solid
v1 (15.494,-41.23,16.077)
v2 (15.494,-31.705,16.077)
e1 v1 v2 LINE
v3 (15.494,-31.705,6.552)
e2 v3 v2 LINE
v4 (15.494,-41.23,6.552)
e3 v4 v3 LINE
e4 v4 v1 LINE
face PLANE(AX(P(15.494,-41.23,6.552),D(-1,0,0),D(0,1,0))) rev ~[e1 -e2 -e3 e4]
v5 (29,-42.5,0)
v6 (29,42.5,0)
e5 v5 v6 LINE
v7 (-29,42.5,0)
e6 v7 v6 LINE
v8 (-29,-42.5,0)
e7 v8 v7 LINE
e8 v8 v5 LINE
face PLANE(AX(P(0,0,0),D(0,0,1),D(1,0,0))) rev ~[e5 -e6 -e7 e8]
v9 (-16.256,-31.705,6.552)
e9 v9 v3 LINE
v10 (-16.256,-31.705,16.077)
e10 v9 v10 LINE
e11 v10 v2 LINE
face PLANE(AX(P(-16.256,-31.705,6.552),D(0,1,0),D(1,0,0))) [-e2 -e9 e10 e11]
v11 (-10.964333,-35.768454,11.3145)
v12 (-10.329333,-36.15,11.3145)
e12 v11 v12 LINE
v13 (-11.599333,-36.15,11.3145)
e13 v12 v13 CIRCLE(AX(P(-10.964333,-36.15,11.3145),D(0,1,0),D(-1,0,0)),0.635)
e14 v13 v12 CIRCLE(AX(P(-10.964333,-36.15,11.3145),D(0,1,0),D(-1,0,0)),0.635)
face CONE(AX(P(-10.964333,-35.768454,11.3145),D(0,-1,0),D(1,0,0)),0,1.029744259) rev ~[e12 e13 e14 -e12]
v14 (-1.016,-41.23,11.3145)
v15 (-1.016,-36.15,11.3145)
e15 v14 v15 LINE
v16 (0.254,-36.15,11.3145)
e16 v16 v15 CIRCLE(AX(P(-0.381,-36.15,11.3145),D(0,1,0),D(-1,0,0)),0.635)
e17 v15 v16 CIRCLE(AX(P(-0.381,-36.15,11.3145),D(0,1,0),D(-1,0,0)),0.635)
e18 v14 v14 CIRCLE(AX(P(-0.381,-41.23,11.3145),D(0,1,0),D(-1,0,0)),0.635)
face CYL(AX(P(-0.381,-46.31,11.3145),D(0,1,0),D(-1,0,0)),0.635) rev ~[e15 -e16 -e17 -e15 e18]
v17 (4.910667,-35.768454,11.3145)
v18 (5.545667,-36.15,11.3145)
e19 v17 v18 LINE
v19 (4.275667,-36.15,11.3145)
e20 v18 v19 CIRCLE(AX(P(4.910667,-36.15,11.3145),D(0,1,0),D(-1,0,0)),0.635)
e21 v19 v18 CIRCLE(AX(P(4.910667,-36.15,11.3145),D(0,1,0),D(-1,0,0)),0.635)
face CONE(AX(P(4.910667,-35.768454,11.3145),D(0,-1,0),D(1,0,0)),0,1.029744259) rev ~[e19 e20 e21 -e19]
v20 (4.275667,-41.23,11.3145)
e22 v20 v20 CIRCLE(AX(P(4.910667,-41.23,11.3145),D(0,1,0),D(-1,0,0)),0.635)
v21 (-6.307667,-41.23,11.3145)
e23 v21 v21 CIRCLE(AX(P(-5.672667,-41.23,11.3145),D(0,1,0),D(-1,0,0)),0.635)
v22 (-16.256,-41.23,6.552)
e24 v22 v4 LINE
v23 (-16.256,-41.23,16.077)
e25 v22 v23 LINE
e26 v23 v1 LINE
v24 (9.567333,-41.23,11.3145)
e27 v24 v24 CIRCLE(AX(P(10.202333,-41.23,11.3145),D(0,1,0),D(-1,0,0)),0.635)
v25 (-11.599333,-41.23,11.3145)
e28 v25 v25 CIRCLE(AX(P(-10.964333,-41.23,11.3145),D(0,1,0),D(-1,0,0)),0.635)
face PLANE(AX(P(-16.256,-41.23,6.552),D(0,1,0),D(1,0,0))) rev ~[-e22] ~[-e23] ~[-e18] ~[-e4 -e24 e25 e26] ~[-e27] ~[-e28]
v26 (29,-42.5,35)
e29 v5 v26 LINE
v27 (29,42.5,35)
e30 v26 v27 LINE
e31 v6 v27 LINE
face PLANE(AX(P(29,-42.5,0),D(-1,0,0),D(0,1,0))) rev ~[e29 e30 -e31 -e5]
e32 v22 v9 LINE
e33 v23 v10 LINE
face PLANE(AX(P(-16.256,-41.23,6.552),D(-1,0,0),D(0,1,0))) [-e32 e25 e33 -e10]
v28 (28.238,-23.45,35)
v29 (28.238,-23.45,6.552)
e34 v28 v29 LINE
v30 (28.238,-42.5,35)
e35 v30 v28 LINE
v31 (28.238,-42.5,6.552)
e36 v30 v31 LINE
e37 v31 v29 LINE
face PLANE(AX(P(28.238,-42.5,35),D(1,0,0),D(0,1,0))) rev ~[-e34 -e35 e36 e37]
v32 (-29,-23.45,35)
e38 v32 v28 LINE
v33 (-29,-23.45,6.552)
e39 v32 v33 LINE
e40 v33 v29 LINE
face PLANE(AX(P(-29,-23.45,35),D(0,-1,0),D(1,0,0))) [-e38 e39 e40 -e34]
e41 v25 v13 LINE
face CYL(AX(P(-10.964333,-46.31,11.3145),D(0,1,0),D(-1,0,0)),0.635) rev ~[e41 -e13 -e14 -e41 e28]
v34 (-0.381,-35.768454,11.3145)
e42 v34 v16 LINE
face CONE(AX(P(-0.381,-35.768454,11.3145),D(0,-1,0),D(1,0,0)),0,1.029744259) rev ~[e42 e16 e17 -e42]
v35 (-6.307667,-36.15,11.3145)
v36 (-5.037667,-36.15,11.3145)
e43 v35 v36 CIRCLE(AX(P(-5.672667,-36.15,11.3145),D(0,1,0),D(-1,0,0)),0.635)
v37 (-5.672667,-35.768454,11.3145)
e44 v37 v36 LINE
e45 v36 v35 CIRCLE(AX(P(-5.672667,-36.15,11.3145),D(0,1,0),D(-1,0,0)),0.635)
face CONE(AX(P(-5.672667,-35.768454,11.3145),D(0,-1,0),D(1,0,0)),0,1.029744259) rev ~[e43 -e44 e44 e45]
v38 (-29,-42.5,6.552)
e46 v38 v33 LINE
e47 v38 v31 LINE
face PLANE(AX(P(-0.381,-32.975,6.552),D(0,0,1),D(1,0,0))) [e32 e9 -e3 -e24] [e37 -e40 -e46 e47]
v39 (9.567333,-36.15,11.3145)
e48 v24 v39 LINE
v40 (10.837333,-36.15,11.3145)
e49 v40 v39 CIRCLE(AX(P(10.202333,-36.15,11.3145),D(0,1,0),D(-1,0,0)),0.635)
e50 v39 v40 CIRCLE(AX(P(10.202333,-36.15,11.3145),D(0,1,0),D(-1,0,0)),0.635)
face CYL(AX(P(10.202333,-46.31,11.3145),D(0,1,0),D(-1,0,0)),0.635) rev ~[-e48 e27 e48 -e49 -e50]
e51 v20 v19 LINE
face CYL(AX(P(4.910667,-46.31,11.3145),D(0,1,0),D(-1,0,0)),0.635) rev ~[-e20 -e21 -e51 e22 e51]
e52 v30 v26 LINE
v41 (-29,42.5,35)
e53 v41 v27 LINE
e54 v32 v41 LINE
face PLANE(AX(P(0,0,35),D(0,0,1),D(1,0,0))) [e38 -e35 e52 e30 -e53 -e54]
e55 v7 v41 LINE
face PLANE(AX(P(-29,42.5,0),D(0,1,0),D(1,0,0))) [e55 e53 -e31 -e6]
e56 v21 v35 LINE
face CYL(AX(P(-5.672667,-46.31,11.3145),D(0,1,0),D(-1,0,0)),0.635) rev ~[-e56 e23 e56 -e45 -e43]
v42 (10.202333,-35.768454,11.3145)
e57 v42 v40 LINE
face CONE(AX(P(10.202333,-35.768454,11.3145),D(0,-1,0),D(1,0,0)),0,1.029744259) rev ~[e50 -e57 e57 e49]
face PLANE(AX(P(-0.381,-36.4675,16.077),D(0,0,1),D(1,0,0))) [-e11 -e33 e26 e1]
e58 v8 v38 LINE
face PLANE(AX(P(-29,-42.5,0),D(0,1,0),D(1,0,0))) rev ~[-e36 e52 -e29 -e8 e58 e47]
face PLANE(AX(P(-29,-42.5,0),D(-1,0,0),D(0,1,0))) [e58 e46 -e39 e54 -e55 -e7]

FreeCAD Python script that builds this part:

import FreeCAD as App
import Part
import Sketcher
Q = App.Units.Quantity


def add_polygon(sketch, points):
    """Adds a closed chain of lines whose ends are joined by coincident constraints."""
    first, n = sketch.GeometryCount, len(points)
    for a, b in zip(points, points[1:] + points[:1]):
        sketch.addGeometry(Part.LineSegment(App.Vector(*a, 0), App.Vector(*b, 0)), False)
    for i in range(n):
        sketch.addConstraint(Sketcher.Constraint("Coincident", first + i, 2, first + (i + 1) % n, 1))

doc = App.newDocument("Part")
body = doc.addObject("PartDesign::Body", "Body")

# Sketch on XY plane
sketch1 = body.newObject("Sketcher::SketchObject", "Sketch")
sketch1.AttachmentSupport = (doc.getObject("XY_Plane"), [""])
sketch1.MapMode = "FlatFace"
add_polygon(sketch1, [(-29, 42), (-29, -42), (29, -42), (29, 42)])  # lines 0-3
sketch1.addConstraint([
    Sketcher.Constraint("Vertical", 0),
    Sketcher.Constraint("Horizontal", 1),
    Sketcher.Constraint("Vertical", 2),
    Sketcher.Constraint("Horizontal", 3),
    Sketcher.Constraint("Symmetric", 0, 2, 2, 2, -1, 1),
    Sketcher.Constraint("DistanceX", 1, 1, 1, 2, Q("58 mm")),
    Sketcher.Constraint("DistanceY", 0, 2, 0, 1, Q("85 mm")),
])
pad1 = body.newObject("PartDesign::Pad", "Pad")
pad1.Profile = sketch1
pad1.Length = 35

# Sketch on XY plane
sketch2 = body.newObject("Sketcher::SketchObject", "Sketch001")
sketch2.AttachmentSupport = (doc.getObject("XY_Plane"), [""])
sketch2.MapMode = "FlatFace"
sketch2.AttachmentOffset = App.Placement(App.Vector(0, 0, 35), App.Rotation())
add_polygon(sketch2, [(-29, -23), (-29, -42), (28, -42), (28, -23)])  # lines 0-3
sketch2.addConstraint([
    Sketcher.Constraint("Vertical", 0),
    Sketcher.Constraint("Horizontal", 1),
    Sketcher.Constraint("Vertical", 2),
    Sketcher.Constraint("Horizontal", 3),
    Sketcher.Constraint("DistanceY", 0, 2, 0, 1, Q("0.75 in")),
    Sketcher.Constraint("DistanceX", 1, 1, 1, 2, Q("57.238 mm")),
    Sketcher.Constraint("DistanceX", 0, 2, -1, 1, Q("29 mm")),
    Sketcher.Constraint("DistanceY", 0, 2, -1, 1, Q("42.5 mm")),
])
pocket1 = body.newObject("PartDesign::Pocket", "Pocket")
pocket1.Profile = sketch2
pocket1.Length = Q("1.12 in")

# Sketch on XY plane
sketch3 = body.newObject("Sketcher::SketchObject", "Sketch002")
sketch3.AttachmentSupport = (doc.getObject("XY_Plane"), [""])
sketch3.MapMode = "FlatFace"
sketch3.AttachmentOffset = App.Placement(App.Vector(0, 0, 6.552), App.Rotation())
add_polygon(sketch3, [(-16, -32), (-16, -41), (15, -41), (15, -32)])  # lines 0-3
sketch3.addConstraint([
    Sketcher.Constraint("Vertical", 0),
    Sketcher.Constraint("Horizontal", 1),
    Sketcher.Constraint("Vertical", 2),
    Sketcher.Constraint("Horizontal", 3),
    Sketcher.Constraint("DistanceX", 1, 1, 1, 2, Q("1.25 in")),
    Sketcher.Constraint("DistanceY", 0, 2, 0, 1, Q("0.375 in")),
    Sketcher.Constraint("DistanceX", 0, 2, -1, 1, Q("0.64 in")),
    Sketcher.Constraint("DistanceY", 0, 2, -1, 1, Q("41.23 mm")),
])
pad2 = body.newObject("PartDesign::Pad", "Pad001")
pad2.Profile = sketch3
pad2.Length = Q("0.375 in")

# Sketch on XZ plane
sketch4 = body.newObject("Sketcher::SketchObject", "Sketch003")
sketch4.AttachmentSupport = (doc.getObject("XZ_Plane"), [""])
sketch4.MapMode = "FlatFace"
sketch4.AttachmentOffset = App.Placement(App.Vector(0, 0, 41.23), App.Rotation())
sketch4.addGeometry([
    Part.Circle(App.Vector(-11, 11.3, 0), App.Vector(0, 0, 1), 0.6),  # 0
    Part.Circle(App.Vector(-5.7, 11.3, 0), App.Vector(0, 0, 1), 0.6),  # 1
    Part.Circle(App.Vector(-0.4, 11.3, 0), App.Vector(0, 0, 1), 0.6),  # 2
    Part.Circle(App.Vector(4.9, 11.3, 0), App.Vector(0, 0, 1), 0.6),  # 3
    Part.Circle(App.Vector(10.2, 11.3, 0), App.Vector(0, 0, 1), 0.6),  # 4
], False)
sketch4.addConstraint([
    Sketcher.Constraint("Equal", 0, 1),
    Sketcher.Constraint("Equal", 1, 2),
    Sketcher.Constraint("Equal", 2, 3),
    Sketcher.Constraint("Equal", 3, 4),
    Sketcher.Constraint("Horizontal", 0, 3, 1, 3),
    Sketcher.Constraint("Horizontal", 1, 3, 2, 3),
    Sketcher.Constraint("Horizontal", 2, 3, 3, 3),
    Sketcher.Constraint("Horizontal", 3, 3, 4, 3),
    Sketcher.Constraint("Diameter", 0, Q("0.05 in")),
    Sketcher.Constraint("DistanceX", 2, 3, -1, 1, Q("0.015 in")),
    Sketcher.Constraint("DistanceX", 0, 3, 3, 3, Q("0.625 in")),
    Sketcher.Constraint("DistanceX", 1, 3, 4, 3, Q("0.625 in")),
    Sketcher.Constraint("DistanceY", -1, 1, 0, 3, Q("11.3145 mm")),
    Sketcher.Constraint("DistanceX", 0, 3, -1, 1, Q("10.964333 mm")),
    Sketcher.Constraint("DistanceX", 1, 3, -1, 1, Q("5.672667 mm")),
])
doc.recompute()
hole = body.newObject("PartDesign::Hole", "Hole")
hole.Profile = sketch4
hole.ThreadType = "None"
hole.Diameter = Q("0.05 in")
hole.DepthType = "Dimension"
hole.Depth = Q("0.2 in")
hole.DrillPoint = "Angled"
hole.DrillPointAngle = 118

doc.recompute()
